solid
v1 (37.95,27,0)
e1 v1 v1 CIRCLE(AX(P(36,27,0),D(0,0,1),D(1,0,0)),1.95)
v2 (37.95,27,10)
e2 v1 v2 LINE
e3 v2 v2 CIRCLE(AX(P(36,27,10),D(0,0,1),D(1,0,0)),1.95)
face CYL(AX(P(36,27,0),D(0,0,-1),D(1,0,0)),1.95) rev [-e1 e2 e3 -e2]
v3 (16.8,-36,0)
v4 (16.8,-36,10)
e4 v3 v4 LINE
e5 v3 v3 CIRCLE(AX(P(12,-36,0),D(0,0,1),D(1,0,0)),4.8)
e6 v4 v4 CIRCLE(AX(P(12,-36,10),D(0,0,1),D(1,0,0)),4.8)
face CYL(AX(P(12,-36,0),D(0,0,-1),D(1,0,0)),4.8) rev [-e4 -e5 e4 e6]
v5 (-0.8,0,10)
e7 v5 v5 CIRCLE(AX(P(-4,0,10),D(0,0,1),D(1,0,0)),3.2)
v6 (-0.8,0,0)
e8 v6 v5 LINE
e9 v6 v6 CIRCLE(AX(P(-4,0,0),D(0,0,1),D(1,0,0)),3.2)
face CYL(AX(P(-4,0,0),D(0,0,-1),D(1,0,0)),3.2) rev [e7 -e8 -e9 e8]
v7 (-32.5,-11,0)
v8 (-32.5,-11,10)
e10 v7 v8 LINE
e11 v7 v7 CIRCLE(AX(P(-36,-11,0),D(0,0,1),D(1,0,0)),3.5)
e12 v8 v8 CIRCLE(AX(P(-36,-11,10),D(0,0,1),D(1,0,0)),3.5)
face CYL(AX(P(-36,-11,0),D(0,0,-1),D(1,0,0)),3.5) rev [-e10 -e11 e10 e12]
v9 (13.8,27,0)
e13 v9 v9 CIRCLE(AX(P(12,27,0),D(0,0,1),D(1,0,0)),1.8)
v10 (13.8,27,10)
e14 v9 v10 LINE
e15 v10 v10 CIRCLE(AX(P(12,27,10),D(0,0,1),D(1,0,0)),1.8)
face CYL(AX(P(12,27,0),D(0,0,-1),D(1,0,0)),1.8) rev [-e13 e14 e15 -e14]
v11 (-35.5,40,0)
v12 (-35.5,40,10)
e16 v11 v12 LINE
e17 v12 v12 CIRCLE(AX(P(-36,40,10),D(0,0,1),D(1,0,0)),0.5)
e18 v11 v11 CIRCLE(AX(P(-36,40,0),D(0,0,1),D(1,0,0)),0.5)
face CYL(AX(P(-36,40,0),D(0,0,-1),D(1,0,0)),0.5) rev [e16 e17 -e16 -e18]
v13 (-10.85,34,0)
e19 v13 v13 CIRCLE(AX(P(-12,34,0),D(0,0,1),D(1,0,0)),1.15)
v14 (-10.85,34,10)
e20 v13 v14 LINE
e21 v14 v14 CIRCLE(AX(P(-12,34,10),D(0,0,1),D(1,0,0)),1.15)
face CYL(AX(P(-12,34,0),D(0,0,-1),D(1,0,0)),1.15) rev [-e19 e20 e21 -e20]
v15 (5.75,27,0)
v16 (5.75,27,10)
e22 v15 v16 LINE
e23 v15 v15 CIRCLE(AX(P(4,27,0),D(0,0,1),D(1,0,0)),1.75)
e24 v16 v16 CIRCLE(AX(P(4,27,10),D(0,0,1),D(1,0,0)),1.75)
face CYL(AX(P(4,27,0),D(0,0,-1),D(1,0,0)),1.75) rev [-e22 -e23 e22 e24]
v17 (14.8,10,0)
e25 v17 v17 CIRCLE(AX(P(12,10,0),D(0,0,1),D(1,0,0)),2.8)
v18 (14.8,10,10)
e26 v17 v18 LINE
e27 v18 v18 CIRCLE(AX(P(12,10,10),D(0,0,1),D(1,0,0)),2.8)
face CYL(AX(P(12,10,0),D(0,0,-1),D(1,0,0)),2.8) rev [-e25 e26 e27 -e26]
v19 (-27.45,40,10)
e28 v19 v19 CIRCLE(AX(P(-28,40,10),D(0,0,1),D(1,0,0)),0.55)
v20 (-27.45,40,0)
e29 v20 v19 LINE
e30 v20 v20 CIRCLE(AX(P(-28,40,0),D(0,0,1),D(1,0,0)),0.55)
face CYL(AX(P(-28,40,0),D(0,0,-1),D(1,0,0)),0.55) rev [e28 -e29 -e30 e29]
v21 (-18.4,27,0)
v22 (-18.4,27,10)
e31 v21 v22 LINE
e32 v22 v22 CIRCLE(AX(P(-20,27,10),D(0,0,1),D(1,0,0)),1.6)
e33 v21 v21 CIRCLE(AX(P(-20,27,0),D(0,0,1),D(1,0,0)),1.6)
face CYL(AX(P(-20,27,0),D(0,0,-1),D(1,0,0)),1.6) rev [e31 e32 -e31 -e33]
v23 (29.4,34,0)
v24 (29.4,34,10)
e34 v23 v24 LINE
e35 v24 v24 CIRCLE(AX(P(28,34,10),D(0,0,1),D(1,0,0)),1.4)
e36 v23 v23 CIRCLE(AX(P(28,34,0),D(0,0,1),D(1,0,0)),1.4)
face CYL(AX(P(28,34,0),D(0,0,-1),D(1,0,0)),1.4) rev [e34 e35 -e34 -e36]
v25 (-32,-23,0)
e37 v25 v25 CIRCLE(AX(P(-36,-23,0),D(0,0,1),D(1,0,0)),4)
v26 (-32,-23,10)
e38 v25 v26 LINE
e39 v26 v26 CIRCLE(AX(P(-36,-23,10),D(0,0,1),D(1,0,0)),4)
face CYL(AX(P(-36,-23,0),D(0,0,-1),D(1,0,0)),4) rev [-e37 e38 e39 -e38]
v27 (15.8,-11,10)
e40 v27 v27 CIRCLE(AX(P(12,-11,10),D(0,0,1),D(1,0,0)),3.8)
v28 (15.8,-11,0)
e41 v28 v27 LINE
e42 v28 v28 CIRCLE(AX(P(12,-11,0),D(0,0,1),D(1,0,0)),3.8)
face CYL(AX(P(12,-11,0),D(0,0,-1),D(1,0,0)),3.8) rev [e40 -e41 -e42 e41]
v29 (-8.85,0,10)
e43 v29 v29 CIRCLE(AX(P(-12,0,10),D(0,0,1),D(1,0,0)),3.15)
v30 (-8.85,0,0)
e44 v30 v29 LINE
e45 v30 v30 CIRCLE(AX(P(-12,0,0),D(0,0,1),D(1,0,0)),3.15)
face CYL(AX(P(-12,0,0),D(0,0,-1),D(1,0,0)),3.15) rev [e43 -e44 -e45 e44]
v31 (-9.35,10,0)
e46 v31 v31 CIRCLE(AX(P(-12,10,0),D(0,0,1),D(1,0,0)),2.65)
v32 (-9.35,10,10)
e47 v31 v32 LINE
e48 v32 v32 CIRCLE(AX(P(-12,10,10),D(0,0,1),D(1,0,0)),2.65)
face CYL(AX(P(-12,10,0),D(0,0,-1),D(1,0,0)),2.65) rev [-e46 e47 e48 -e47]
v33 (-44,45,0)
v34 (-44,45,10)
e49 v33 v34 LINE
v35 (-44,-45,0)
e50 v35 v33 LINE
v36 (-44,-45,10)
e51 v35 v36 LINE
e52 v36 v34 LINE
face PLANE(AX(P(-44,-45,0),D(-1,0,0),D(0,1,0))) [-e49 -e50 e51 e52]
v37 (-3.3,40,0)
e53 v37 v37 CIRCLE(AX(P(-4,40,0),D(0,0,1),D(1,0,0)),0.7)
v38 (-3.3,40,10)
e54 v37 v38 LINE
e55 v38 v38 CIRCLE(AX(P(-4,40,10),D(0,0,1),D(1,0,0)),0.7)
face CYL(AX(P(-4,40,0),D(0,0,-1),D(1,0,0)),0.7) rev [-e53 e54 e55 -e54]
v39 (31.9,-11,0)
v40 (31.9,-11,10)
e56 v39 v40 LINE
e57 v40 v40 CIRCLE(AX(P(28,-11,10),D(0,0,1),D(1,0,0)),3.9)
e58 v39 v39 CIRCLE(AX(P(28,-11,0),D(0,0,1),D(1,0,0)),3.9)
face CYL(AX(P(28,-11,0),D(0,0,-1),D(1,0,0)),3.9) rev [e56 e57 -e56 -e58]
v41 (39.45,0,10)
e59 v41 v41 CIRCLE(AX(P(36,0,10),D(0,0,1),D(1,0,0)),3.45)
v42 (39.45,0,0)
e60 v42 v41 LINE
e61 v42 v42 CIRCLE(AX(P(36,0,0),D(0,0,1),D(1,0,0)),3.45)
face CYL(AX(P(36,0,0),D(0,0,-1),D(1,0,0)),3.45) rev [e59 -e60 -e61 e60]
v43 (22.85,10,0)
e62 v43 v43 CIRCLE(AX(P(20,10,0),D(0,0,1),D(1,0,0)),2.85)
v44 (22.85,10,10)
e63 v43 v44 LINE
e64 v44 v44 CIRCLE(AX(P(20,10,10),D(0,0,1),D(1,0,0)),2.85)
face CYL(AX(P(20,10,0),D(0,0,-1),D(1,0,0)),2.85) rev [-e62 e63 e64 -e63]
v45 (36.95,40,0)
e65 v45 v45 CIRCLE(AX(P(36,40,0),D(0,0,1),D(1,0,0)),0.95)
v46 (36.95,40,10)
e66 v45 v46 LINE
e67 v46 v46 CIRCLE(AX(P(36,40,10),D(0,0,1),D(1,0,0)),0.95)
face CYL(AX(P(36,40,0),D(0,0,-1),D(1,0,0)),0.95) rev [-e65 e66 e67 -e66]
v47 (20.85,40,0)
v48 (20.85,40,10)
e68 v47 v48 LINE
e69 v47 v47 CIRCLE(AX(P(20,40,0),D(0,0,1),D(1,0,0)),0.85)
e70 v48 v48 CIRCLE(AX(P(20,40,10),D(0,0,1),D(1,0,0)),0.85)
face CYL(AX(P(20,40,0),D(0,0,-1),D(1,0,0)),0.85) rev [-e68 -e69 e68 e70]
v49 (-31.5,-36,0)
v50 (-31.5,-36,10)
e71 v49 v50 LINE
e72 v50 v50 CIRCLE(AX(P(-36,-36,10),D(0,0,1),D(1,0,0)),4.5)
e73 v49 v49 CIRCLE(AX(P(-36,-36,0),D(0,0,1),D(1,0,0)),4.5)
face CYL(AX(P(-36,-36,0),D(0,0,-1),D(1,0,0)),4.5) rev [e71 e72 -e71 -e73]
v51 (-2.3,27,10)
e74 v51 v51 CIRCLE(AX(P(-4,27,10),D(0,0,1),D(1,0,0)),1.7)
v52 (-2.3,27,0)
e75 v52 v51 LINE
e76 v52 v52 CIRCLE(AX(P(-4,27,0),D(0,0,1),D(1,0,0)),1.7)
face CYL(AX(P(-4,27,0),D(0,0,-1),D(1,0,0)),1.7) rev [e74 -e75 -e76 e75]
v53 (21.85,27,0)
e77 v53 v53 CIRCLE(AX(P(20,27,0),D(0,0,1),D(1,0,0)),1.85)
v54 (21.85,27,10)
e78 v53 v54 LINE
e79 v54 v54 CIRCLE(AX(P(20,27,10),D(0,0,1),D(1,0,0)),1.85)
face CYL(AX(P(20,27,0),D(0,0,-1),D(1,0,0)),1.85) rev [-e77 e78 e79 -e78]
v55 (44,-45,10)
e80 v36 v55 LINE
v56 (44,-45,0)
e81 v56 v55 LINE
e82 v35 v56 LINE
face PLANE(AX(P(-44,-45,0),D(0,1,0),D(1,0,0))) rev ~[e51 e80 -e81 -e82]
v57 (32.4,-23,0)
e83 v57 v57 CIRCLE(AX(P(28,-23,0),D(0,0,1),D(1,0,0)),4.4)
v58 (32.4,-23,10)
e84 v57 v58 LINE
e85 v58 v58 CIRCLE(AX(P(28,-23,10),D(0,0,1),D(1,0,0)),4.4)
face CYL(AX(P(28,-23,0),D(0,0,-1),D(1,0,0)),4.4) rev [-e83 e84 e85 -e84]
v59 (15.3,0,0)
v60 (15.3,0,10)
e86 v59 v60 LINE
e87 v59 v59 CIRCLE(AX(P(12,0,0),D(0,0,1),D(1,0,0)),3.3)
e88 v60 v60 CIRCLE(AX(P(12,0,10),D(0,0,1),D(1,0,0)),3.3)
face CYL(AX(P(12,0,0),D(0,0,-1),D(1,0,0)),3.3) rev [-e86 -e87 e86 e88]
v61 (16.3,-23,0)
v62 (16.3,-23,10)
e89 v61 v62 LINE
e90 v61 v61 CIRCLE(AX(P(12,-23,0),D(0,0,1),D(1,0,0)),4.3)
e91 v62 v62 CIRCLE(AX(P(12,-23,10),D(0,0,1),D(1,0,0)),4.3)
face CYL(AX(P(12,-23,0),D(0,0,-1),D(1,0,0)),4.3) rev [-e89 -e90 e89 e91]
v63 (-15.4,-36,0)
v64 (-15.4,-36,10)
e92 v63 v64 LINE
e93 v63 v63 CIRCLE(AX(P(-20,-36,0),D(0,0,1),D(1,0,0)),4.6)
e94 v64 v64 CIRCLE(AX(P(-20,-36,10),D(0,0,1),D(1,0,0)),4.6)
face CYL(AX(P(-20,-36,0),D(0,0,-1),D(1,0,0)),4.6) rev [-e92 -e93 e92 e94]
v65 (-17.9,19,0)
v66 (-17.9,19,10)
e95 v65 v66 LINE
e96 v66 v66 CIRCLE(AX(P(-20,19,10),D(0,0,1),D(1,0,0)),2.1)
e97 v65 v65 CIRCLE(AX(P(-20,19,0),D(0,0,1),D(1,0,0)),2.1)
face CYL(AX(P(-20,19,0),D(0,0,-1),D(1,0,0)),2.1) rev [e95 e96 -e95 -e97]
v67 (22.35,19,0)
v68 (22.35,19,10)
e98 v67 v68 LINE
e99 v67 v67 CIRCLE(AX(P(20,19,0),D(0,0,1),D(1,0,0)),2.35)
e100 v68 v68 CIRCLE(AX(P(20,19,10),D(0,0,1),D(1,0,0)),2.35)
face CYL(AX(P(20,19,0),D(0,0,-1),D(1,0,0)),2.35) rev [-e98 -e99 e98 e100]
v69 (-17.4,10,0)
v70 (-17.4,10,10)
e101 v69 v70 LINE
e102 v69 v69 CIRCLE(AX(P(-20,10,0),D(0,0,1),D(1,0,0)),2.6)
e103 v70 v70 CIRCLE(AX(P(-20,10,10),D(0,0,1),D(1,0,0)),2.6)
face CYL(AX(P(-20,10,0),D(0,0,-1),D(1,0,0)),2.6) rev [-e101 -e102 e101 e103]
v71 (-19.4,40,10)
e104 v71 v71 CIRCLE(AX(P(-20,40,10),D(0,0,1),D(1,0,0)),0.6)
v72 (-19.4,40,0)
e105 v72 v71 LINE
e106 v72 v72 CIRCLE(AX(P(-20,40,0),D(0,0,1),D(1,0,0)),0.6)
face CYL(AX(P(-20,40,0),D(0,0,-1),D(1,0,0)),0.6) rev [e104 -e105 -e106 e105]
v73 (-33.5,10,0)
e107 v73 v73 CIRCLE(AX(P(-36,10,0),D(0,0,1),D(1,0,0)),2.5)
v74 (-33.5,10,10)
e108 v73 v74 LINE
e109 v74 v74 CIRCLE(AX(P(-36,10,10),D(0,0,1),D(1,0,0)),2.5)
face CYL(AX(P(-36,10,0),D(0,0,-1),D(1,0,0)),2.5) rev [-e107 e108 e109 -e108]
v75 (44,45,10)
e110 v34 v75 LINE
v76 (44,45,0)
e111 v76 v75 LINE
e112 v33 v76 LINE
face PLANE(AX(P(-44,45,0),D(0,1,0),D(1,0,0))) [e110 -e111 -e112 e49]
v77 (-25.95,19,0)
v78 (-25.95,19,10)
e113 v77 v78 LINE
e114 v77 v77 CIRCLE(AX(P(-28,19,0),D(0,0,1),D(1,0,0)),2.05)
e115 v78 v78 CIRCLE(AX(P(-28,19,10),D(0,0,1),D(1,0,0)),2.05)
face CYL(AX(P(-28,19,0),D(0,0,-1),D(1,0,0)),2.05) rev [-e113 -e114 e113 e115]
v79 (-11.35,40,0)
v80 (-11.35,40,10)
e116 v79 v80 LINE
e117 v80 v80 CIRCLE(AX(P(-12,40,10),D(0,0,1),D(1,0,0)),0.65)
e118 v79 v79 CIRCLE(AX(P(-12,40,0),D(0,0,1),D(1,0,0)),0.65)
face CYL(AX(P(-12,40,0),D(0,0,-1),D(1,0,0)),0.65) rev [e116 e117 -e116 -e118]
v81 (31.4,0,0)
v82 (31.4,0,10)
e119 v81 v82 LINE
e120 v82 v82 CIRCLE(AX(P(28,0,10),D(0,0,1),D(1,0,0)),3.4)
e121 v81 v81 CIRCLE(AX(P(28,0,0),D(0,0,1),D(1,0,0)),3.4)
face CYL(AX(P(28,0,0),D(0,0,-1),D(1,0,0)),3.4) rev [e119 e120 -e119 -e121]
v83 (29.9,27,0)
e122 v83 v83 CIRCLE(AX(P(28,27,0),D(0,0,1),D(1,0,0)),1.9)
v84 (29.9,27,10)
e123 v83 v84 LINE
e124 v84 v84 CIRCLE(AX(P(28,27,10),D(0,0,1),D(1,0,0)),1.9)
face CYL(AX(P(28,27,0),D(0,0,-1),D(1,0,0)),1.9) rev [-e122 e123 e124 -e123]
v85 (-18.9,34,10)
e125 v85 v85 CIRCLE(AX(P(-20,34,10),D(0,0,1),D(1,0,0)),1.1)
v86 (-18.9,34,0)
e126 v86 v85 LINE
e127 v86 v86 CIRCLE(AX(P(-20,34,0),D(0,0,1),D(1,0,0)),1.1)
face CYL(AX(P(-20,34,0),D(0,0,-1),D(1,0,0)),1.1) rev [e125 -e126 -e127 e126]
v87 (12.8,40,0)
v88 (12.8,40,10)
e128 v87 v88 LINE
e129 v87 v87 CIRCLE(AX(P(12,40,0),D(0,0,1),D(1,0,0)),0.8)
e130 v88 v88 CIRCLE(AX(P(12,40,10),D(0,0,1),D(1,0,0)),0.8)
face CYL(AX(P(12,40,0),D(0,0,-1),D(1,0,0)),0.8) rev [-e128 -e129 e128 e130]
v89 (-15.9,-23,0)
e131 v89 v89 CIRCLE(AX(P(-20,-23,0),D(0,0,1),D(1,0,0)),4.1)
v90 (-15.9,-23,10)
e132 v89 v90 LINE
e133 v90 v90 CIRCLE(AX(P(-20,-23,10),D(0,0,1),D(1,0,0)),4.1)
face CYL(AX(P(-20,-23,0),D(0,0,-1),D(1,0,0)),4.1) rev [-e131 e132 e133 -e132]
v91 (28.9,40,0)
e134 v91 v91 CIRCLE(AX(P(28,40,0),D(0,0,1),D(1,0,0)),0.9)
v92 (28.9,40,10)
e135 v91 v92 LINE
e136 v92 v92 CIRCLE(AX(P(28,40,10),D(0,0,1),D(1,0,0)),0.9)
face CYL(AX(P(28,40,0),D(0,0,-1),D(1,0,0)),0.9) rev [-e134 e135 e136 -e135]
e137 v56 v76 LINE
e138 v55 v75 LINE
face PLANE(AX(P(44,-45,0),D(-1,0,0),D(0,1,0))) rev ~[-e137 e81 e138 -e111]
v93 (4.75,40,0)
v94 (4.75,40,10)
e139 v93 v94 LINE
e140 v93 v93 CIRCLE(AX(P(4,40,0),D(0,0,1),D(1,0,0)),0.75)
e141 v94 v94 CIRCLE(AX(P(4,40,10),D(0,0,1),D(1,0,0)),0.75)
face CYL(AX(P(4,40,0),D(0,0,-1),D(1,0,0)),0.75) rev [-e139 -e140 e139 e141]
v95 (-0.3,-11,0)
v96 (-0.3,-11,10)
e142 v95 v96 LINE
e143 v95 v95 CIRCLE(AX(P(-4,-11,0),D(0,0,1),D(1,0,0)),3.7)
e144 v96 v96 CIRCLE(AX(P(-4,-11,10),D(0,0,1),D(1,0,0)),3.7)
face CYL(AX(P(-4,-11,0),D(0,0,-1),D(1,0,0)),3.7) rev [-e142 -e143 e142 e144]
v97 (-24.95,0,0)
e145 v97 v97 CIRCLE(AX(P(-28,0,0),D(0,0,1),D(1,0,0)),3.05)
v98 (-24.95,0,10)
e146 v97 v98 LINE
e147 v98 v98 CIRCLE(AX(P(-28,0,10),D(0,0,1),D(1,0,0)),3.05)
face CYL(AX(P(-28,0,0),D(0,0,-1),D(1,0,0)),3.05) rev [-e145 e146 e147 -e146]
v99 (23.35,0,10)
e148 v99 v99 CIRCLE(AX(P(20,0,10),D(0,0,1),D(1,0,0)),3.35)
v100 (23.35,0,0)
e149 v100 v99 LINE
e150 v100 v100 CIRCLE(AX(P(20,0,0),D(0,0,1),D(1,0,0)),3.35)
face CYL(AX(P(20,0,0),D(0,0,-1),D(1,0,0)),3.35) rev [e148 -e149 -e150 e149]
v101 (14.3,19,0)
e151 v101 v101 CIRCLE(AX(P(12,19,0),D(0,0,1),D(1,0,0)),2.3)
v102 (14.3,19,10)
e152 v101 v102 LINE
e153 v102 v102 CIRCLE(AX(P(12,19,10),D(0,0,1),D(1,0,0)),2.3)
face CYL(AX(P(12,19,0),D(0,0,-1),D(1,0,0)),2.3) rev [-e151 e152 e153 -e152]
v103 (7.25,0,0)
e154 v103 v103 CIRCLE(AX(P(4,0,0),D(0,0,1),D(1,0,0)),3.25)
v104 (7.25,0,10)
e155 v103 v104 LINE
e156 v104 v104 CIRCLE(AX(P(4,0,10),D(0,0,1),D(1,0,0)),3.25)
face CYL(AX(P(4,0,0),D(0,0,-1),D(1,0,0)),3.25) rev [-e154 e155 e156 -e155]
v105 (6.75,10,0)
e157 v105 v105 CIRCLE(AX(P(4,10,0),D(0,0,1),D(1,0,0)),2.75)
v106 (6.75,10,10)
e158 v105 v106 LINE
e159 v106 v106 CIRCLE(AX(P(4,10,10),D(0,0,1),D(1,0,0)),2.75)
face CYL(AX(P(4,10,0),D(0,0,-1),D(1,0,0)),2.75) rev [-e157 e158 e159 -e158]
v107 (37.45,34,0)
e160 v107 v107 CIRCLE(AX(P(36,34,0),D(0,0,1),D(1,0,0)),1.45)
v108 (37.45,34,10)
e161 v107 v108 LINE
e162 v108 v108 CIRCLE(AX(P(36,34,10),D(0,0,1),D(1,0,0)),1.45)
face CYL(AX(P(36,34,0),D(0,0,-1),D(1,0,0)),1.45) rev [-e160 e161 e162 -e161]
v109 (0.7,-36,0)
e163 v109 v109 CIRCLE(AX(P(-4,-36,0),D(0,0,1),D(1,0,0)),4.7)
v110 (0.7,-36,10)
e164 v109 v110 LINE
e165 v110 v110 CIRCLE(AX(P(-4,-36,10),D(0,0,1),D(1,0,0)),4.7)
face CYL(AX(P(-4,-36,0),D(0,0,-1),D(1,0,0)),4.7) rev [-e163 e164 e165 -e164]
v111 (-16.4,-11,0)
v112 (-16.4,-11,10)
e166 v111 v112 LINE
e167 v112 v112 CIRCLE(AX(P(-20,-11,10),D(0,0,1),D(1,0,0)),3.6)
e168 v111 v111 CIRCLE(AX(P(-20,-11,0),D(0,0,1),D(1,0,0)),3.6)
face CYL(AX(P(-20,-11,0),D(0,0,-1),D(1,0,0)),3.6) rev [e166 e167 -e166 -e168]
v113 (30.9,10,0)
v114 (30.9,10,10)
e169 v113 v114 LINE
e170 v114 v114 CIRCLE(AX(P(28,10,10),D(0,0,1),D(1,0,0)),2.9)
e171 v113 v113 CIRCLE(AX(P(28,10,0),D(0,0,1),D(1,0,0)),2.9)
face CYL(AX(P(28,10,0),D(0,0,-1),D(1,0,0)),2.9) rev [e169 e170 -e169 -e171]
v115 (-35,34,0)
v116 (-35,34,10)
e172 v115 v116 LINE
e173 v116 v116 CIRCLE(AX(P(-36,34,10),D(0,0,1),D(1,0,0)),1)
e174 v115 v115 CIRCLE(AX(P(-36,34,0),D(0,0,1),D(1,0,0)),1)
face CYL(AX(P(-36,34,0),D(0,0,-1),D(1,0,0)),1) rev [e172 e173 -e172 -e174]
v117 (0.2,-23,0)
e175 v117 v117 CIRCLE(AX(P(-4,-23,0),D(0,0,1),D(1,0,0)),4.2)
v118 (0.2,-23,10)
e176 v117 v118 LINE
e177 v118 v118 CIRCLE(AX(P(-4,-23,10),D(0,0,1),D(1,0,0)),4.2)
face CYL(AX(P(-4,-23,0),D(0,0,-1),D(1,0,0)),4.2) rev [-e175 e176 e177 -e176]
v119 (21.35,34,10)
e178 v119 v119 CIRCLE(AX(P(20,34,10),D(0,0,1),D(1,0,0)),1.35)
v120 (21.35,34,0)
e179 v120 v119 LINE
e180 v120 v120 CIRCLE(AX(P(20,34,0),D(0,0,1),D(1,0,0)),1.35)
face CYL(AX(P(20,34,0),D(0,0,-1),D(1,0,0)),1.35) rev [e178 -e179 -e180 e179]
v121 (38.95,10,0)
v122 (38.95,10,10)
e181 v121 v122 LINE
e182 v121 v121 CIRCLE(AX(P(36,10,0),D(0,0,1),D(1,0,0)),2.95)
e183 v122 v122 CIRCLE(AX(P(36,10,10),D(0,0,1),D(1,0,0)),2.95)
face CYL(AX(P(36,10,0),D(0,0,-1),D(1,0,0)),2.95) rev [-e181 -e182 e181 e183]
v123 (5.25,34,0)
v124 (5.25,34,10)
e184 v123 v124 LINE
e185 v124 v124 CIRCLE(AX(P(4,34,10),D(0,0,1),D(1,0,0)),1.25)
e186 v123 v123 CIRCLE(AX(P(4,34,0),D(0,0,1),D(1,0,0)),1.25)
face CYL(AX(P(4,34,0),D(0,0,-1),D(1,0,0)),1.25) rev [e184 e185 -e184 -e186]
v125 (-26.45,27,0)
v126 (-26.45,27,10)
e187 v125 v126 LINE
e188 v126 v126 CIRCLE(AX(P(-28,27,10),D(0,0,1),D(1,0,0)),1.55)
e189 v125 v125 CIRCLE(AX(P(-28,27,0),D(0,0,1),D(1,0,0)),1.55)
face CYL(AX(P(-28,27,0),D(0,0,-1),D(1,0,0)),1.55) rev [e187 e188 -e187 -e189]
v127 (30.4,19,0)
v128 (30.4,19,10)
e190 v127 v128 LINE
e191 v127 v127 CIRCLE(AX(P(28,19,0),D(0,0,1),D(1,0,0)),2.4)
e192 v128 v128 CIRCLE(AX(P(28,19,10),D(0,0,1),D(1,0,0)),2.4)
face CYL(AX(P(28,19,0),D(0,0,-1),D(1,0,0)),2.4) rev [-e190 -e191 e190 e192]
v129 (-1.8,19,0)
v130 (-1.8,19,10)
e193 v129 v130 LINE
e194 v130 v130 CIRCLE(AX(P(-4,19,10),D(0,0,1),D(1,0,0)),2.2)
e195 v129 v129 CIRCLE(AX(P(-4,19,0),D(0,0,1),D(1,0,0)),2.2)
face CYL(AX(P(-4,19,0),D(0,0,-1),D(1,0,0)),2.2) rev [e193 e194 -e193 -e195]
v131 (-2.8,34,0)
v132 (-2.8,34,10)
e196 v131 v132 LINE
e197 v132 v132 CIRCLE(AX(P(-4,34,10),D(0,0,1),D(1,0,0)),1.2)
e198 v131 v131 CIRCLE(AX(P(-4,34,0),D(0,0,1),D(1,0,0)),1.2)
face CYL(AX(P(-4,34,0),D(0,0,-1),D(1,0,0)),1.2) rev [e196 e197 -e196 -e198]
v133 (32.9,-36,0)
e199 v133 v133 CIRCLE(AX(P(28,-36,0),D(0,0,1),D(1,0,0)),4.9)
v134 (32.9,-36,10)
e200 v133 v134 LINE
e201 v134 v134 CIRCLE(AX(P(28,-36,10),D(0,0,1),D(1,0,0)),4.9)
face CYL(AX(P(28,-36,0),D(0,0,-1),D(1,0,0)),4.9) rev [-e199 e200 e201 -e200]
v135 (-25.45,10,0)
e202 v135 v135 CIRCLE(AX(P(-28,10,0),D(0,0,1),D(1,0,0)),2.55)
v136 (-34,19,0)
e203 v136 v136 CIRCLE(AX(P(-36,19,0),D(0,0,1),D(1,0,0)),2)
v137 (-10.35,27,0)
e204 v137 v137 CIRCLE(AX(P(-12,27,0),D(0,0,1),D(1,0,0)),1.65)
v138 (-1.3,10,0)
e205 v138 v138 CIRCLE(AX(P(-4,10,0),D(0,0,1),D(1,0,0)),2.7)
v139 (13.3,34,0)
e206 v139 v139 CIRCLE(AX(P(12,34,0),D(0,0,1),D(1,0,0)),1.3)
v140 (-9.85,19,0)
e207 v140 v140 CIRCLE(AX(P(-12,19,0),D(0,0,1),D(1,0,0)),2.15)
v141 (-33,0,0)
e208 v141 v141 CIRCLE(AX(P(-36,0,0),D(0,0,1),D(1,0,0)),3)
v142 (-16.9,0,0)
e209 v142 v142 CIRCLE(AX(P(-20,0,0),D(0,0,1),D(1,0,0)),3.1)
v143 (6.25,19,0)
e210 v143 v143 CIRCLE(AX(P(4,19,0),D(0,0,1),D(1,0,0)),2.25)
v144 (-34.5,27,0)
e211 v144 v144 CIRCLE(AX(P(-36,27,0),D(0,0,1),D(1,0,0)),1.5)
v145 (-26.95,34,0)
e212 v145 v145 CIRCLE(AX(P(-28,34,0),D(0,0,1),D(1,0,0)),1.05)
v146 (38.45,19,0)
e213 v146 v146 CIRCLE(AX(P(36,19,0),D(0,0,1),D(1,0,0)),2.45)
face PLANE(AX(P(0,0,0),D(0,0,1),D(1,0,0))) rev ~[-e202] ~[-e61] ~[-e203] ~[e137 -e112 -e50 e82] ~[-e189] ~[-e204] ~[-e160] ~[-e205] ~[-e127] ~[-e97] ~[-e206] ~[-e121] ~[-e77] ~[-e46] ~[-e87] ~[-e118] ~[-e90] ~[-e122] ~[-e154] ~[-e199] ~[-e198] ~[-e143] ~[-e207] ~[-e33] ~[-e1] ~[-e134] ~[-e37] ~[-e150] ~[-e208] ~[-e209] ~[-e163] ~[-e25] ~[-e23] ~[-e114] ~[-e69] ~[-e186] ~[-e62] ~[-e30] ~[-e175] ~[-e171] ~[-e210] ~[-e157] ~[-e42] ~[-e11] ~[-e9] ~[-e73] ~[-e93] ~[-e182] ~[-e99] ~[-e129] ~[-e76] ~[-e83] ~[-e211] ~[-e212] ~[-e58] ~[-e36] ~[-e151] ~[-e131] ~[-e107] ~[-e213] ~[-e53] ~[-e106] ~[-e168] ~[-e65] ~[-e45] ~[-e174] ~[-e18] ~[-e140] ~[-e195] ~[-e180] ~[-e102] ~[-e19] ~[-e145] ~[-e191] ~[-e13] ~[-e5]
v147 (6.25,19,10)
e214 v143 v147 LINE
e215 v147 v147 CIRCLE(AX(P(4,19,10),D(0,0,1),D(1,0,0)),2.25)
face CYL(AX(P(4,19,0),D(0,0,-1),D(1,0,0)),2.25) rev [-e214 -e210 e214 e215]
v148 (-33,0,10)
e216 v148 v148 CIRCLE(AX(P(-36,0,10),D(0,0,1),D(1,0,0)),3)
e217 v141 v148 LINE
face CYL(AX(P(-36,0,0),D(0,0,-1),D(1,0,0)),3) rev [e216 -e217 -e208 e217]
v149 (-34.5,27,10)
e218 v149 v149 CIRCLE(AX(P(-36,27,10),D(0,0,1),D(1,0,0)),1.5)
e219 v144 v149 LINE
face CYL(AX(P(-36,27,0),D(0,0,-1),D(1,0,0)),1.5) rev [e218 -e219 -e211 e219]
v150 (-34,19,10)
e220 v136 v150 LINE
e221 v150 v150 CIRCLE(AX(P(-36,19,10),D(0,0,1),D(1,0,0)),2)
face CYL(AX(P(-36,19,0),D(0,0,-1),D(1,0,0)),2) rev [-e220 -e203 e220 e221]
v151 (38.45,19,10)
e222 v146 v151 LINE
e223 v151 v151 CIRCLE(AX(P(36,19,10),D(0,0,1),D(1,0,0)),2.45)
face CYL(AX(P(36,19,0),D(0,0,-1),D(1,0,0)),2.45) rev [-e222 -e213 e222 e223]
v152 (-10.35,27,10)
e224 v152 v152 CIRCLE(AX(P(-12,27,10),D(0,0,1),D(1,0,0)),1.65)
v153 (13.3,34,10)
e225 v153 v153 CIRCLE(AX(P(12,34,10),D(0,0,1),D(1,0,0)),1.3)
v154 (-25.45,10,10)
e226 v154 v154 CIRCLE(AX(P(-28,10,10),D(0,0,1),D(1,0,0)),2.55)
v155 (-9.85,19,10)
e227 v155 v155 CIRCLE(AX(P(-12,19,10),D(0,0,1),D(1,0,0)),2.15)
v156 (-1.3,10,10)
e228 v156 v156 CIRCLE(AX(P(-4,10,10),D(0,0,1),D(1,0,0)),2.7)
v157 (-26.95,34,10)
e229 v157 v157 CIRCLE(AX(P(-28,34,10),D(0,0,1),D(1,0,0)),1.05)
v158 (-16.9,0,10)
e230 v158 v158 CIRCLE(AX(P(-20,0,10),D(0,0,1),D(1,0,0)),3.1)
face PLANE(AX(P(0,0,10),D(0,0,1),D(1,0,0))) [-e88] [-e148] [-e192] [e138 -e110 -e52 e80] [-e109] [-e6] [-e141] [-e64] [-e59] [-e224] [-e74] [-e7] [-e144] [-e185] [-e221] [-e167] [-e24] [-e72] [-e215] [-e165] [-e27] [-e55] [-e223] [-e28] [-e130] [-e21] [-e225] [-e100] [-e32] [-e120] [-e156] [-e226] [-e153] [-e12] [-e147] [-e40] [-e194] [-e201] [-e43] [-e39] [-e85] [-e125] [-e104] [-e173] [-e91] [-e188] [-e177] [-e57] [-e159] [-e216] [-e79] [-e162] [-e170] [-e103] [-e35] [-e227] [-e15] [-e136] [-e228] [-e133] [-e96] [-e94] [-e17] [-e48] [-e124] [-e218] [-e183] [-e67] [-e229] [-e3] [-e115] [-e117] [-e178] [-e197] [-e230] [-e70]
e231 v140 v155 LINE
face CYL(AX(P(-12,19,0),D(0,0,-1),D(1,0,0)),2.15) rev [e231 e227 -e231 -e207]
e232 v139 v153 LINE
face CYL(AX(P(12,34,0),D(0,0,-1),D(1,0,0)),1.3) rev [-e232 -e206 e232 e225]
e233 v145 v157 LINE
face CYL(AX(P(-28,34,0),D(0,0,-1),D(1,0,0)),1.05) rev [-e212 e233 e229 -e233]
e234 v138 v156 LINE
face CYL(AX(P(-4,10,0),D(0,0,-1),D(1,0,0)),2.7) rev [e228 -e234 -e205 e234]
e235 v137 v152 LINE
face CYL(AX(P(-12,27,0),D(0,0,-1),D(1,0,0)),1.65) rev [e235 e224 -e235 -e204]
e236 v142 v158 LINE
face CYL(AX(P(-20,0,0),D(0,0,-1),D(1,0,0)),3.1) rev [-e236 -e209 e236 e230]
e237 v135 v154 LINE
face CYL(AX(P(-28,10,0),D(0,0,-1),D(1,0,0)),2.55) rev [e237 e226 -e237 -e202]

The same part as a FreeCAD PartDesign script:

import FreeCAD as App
import Part
import Sketcher
from FreeCAD import Vector
Q = App.Units.Quantity


def add_polygon(sketch, points):
    """Adds a closed chain of lines whose ends are joined by coincident constraints."""
    first, n = sketch.GeometryCount, len(points)
    for a, b in zip(points, points[1:] + points[:1]):
        sketch.addGeometry(Part.LineSegment(App.Vector(*a, 0), App.Vector(*b, 0)), False)
    for i in range(n):
        sketch.addConstraint(Sketcher.Constraint("Coincident", first + i, 2, first + (i + 1) % n, 1))

doc = App.newDocument("Part")
body = doc.addObject("PartDesign::Body", "Body")

# Sketch on XY plane
sketch1 = body.newObject("Sketcher::SketchObject", "Sketch")
sketch1.AttachmentSupport = (doc.getObject("XY_Plane"), [""])
sketch1.MapMode = "FlatFace"
add_polygon(sketch1, [(-44, 45), (-44, -45), (44, -45), (44, 45)])  # lines 0-3
sketch1.addGeometry(Part.Circle(Vector(-36, -36, 0), Vector(0, 0, 1), 4.5), False)  # 4
sketch1.addGeometry(Part.Circle(Vector(-36, -23, 0), Vector(0, 0, 1), 4), False)  # 5
sketch1.addGeometry(Part.Circle(Vector(-20, -36, 0), Vector(0, 0, 1), 4.6), False)  # 6
sketch1.addGeometry(Part.Circle(Vector(-4, -36, 0), Vector(0, 0, 1), 4.7), False)  # 7
sketch1.addGeometry(Part.Circle(Vector(-20, -23, 0), Vector(0, 0, 1), 4.1), False)  # 8
sketch1.addGeometry(Part.Circle(Vector(-4, -23, 0), Vector(0, 0, 1), 4.2), False)  # 9
sketch1.addGeometry(Part.Circle(Vector(-36, -11, 0), Vector(0, 0, 1), 3.5), False)  # 10
sketch1.addGeometry(Part.Circle(Vector(-36, 0, 0), Vector(0, 0, 1), 3), False)  # 11
sketch1.addGeometry(Part.Circle(Vector(-28, 0, 0), Vector(0, 0, 1), 3.05), False)  # 12
sketch1.addGeometry(Part.Circle(Vector(-20, -11, 0), Vector(0, 0, 1), 3.6), False)  # 13
sketch1.addGeometry(Part.Circle(Vector(-4, -11, 0), Vector(0, 0, 1), 3.7), False)  # 14
sketch1.addGeometry(Part.Circle(Vector(-20, 0, 0), Vector(0, 0, 1), 3.1), False)  # 15
sketch1.addGeometry(Part.Circle(Vector(-12, 0, 0), Vector(0, 0, 1), 3.15), False)  # 16
sketch1.addGeometry(Part.Circle(Vector(-4, 0, 0), Vector(0, 0, 1), 3.2), False)  # 17
sketch1.addGeometry(Part.Circle(Vector(12, -36, 0), Vector(0, 0, 1), 4.8), False)  # 18
sketch1.addGeometry(Part.Circle(Vector(12, -23, 0), Vector(0, 0, 1), 4.3), False)  # 19
sketch1.addGeometry(Part.Circle(Vector(28, -36, 0), Vector(0, 0, 1), 4.9), False)  # 20
sketch1.addGeometry(Part.Circle(Vector(28, -23, 0), Vector(0, 0, 1), 4.4), False)  # 21
sketch1.addGeometry(Part.Circle(Vector(12, -11, 0), Vector(0, 0, 1), 3.8), False)  # 22
sketch1.addGeometry(Part.Circle(Vector(4, 0, 0), Vector(0, 0, 1), 3.25), False)  # 23
sketch1.addGeometry(Part.Circle(Vector(12, 0, 0), Vector(0, 0, 1), 3.3), False)  # 24
sketch1.addGeometry(Part.Circle(Vector(28, -11, 0), Vector(0, 0, 1), 3.9), False)  # 25
sketch1.addGeometry(Part.Circle(Vector(20, 0, 0), Vector(0, 0, 1), 3.35), False)  # 26
sketch1.addGeometry(Part.Circle(Vector(28, 0, 0), Vector(0, 0, 1), 3.4), False)  # 27
sketch1.addGeometry(Part.Circle(Vector(36, 0, 0), Vector(0, 0, 1), 3.45), False)  # 28
sketch1.addGeometry(Part.Circle(Vector(-36, 10, 0), Vector(0, 0, 1), 2.5), False)  # 29
sketch1.addGeometry(Part.Circle(Vector(-28, 10, 0), Vector(0, 0, 1), 2.55), False)  # 30
sketch1.addGeometry(Part.Circle(Vector(-36, 19, 0), Vector(0, 0, 1), 2), False)  # 31
sketch1.addGeometry(Part.Circle(Vector(-28, 19, 0), Vector(0, 0, 1), 2.05), False)  # 32
sketch1.addGeometry(Part.Circle(Vector(-20, 10, 0), Vector(0, 0, 1), 2.6), False)  # 33
sketch1.addGeometry(Part.Circle(Vector(-12, 10, 0), Vector(0, 0, 1), 2.65), False)  # 34
sketch1.addGeometry(Part.Circle(Vector(-4, 10, 0), Vector(0, 0, 1), 2.7), False)  # 35
sketch1.addGeometry(Part.Circle(Vector(-20, 19, 0), Vector(0, 0, 1), 2.1), False)  # 36
sketch1.addGeometry(Part.Circle(Vector(-12, 19, 0), Vector(0, 0, 1), 2.15), False)  # 37
sketch1.addGeometry(Part.Circle(Vector(-4, 19, 0), Vector(0, 0, 1), 2.2), False)  # 38
sketch1.addGeometry(Part.Circle(Vector(-36, 27, 0), Vector(0, 0, 1), 1.5), False)  # 39
sketch1.addGeometry(Part.Circle(Vector(-28, 27, 0), Vector(0, 0, 1), 1.55), False)  # 40
sketch1.addGeometry(Part.Circle(Vector(-36, 34, 0), Vector(0, 0, 1), 1), False)  # 41
sketch1.addGeometry(Part.Circle(Vector(-36, 40, 0), Vector(0, 0, 1), 0.5), False)  # 42
sketch1.addGeometry(Part.Circle(Vector(-28, 34, 0), Vector(0, 0, 1), 1.05), False)  # 43
sketch1.addGeometry(Part.Circle(Vector(-28, 40, 0), Vector(0, 0, 1), 0.55), False)  # 44
sketch1.addGeometry(Part.Circle(Vector(-20, 27, 0), Vector(0, 0, 1), 1.6), False)  # 45
sketch1.addGeometry(Part.Circle(Vector(-12, 27, 0), Vector(0, 0, 1), 1.65), False)  # 46
sketch1.addGeometry(Part.Circle(Vector(-4, 27, 0), Vector(0, 0, 1), 1.7), False)  # 47
sketch1.addGeometry(Part.Circle(Vector(-20, 34, 0), Vector(0, 0, 1), 1.1), False)  # 48
sketch1.addGeometry(Part.Circle(Vector(-12, 34, 0), Vector(0, 0, 1), 1.15), False)  # 49
sketch1.addGeometry(Part.Circle(Vector(-20, 40, 0), Vector(0, 0, 1), 0.6), False)  # 50
sketch1.addGeometry(Part.Circle(Vector(-12, 40, 0), Vector(0, 0, 1), 0.65), False)  # 51
sketch1.addGeometry(Part.Circle(Vector(-4, 34, 0), Vector(0, 0, 1), 1.2), False)  # 52
sketch1.addGeometry(Part.Circle(Vector(-4, 40, 0), Vector(0, 0, 1), 0.7), False)  # 53
sketch1.addGeometry(Part.Circle(Vector(4, 10, 0), Vector(0, 0, 1), 2.75), False)  # 54
sketch1.addGeometry(Part.Circle(Vector(12, 10, 0), Vector(0, 0, 1), 2.8), False)  # 55
sketch1.addGeometry(Part.Circle(Vector(4, 19, 0), Vector(0, 0, 1), 2.25), False)  # 56
sketch1.addGeometry(Part.Circle(Vector(12, 19, 0), Vector(0, 0, 1), 2.3), False)  # 57
sketch1.addGeometry(Part.Circle(Vector(20, 10, 0), Vector(0, 0, 1), 2.85), False)  # 58
sketch1.addGeometry(Part.Circle(Vector(28, 10, 0), Vector(0, 0, 1), 2.9), False)  # 59
sketch1.addGeometry(Part.Circle(Vector(36, 10, 0), Vector(0, 0, 1), 2.95), False)  # 60
sketch1.addGeometry(Part.Circle(Vector(20, 19, 0), Vector(0, 0, 1), 2.35), False)  # 61
sketch1.addGeometry(Part.Circle(Vector(28, 19, 0), Vector(0, 0, 1), 2.4), False)  # 62
sketch1.addGeometry(Part.Circle(Vector(36, 19, 0), Vector(0, 0, 1), 2.45), False)  # 63
sketch1.addGeometry(Part.Circle(Vector(4, 27, 0), Vector(0, 0, 1), 1.75), False)  # 64
sketch1.addGeometry(Part.Circle(Vector(12, 27, 0), Vector(0, 0, 1), 1.8), False)  # 65
sketch1.addGeometry(Part.Circle(Vector(4, 34, 0), Vector(0, 0, 1), 1.25), False)  # 66
sketch1.addGeometry(Part.Circle(Vector(4, 40, 0), Vector(0, 0, 1), 0.75), False)  # 67
sketch1.addGeometry(Part.Circle(Vector(12, 34, 0), Vector(0, 0, 1), 1.3), False)  # 68
sketch1.addGeometry(Part.Circle(Vector(12, 40, 0), Vector(0, 0, 1), 0.8), False)  # 69
sketch1.addGeometry(Part.Circle(Vector(20, 27, 0), Vector(0, 0, 1), 1.85), False)  # 70
sketch1.addGeometry(Part.Circle(Vector(28, 27, 0), Vector(0, 0, 1), 1.9), False)  # 71
sketch1.addGeometry(Part.Circle(Vector(36, 27, 0), Vector(0, 0, 1), 1.95), False)  # 72
sketch1.addGeometry(Part.Circle(Vector(20, 34, 0), Vector(0, 0, 1), 1.35), False)  # 73
sketch1.addGeometry(Part.Circle(Vector(28, 34, 0), Vector(0, 0, 1), 1.4), False)  # 74
sketch1.addGeometry(Part.Circle(Vector(20, 40, 0), Vector(0, 0, 1), 0.85), False)  # 75
sketch1.addGeometry(Part.Circle(Vector(28, 40, 0), Vector(0, 0, 1), 0.9), False)  # 76
sketch1.addGeometry(Part.Circle(Vector(36, 34, 0), Vector(0, 0, 1), 1.45), False)  # 77
sketch1.addGeometry(Part.Circle(Vector(36, 40, 0), Vector(0, 0, 1), 0.95), False)  # 78
sketch1.addConstraint([
    Sketcher.Constraint("Vertical", 0),
    Sketcher.Constraint("Horizontal", 1),
    Sketcher.Constraint("Vertical", 2),
    Sketcher.Constraint("Horizontal", 3),
    Sketcher.Constraint("Symmetric", 17, 3, 23, 3, -1, 1),
    Sketcher.Constraint("Symmetric", 16, 3, 24, 3, -1, 1),
    Sketcher.Constraint("Symmetric", 15, 3, 26, 3, -1, 1),
    Sketcher.Constraint("Symmetric", 12, 3, 27, 3, -1, 1),
    Sketcher.Constraint("Symmetric", 11, 3, 28, 3, -1, 1),
    Sketcher.Constraint("Symmetric", 0, 2, 2, 2, -1, 1),
    Sketcher.Constraint("Symmetric", 35, 3, 54, 3, -2),
    Sketcher.Constraint("Symmetric", 34, 3, 55, 3, -2),
    Sketcher.Constraint("Symmetric", 38, 3, 56, 3, -2),
    Sketcher.Constraint("Symmetric", 37, 3, 57, 3, -2),
    Sketcher.Constraint("Symmetric", 33, 3, 58, 3, -2),
    Sketcher.Constraint("Symmetric", 30, 3, 59, 3, -2),
    Sketcher.Constraint("Symmetric", 29, 3, 60, 3, -2),
    Sketcher.Constraint("Symmetric", 36, 3, 61, 3, -2),
    Sketcher.Constraint("Symmetric", 32, 3, 62, 3, -2),
    Sketcher.Constraint("Symmetric", 31, 3, 63, 3, -2),
    Sketcher.Constraint("Symmetric", 47, 3, 64, 3, -2),
    Sketcher.Constraint("Symmetric", 46, 3, 65, 3, -2),
    Sketcher.Constraint("Symmetric", 52, 3, 66, 3, -2),
    Sketcher.Constraint("Symmetric", 53, 3, 67, 3, -2),
    Sketcher.Constraint("Symmetric", 49, 3, 68, 3, -2),
    Sketcher.Constraint("Symmetric", 51, 3, 69, 3, -2),
    Sketcher.Constraint("Symmetric", 45, 3, 70, 3, -2),
    Sketcher.Constraint("Symmetric", 40, 3, 71, 3, -2),
    Sketcher.Constraint("Symmetric", 39, 3, 72, 3, -2),
    Sketcher.Constraint("Symmetric", 48, 3, 73, 3, -2),
    Sketcher.Constraint("Symmetric", 43, 3, 74, 3, -2),
    Sketcher.Constraint("Symmetric", 50, 3, 75, 3, -2),
    Sketcher.Constraint("Symmetric", 44, 3, 76, 3, -2),
    Sketcher.Constraint("Symmetric", 41, 3, 77, 3, -2),
    Sketcher.Constraint("Symmetric", 42, 3, 78, 3, -2),
    Sketcher.Constraint("PointOnObject", 11, 3, -1),
    Sketcher.Constraint("PointOnObject", 12, 3, -1),
    Sketcher.Constraint("PointOnObject", 15, 3, -1),
    Sketcher.Constraint("PointOnObject", 16, 3, -1),
    Sketcher.Constraint("PointOnObject", 17, 3, -1),
    Sketcher.Constraint("Horizontal", 4, 3, 6, 3),
    Sketcher.Constraint("Horizontal", 6, 3, 7, 3),
    Sketcher.Constraint("Horizontal", 5, 3, 8, 3),
    Sketcher.Constraint("Horizontal", 8, 3, 9, 3),
    Sketcher.Constraint("Horizontal", 10, 3, 13, 3),
    Sketcher.Constraint("Horizontal", 13, 3, 14, 3),
    Sketcher.Constraint("Horizontal", 7, 3, 18, 3),
    Sketcher.Constraint("Horizontal", 9, 3, 19, 3),
    Sketcher.Constraint("Horizontal", 18, 3, 20, 3),
    Sketcher.Constraint("Horizontal", 19, 3, 21, 3),
    Sketcher.Constraint("Horizontal", 14, 3, 22, 3),
    Sketcher.Constraint("Horizontal", 22, 3, 25, 3),
    Sketcher.Constraint("Horizontal", 29, 3, 30, 3),
    Sketcher.Constraint("Horizontal", 31, 3, 32, 3),
    Sketcher.Constraint("Horizontal", 30, 3, 33, 3),
    Sketcher.Constraint("Horizontal", 33, 3, 34, 3),
    Sketcher.Constraint("Horizontal", 34, 3, 35, 3),
    Sketcher.Constraint("Horizontal", 32, 3, 36, 3),
    Sketcher.Constraint("Horizontal", 36, 3, 37, 3),
    Sketcher.Constraint("Horizontal", 37, 3, 38, 3),
    Sketcher.Constraint("Horizontal", 39, 3, 40, 3),
    Sketcher.Constraint("Horizontal", 41, 3, 43, 3),
    Sketcher.Constraint("Horizontal", 42, 3, 44, 3),
    Sketcher.Constraint("Horizontal", 40, 3, 45, 3),
    Sketcher.Constraint("Horizontal", 45, 3, 46, 3),
    Sketcher.Constraint("Horizontal", 46, 3, 47, 3),
    Sketcher.Constraint("Horizontal", 43, 3, 48, 3),
    Sketcher.Constraint("Horizontal", 48, 3, 49, 3),
    Sketcher.Constraint("Horizontal", 44, 3, 50, 3),
    Sketcher.Constraint("Horizontal", 50, 3, 51, 3),
    Sketcher.Constraint("Horizontal", 49, 3, 52, 3),
    Sketcher.Constraint("Horizontal", 51, 3, 53, 3),
    Sketcher.Constraint("Vertical", 4, 3, 5, 3),
    Sketcher.Constraint("Vertical", 6, 3, 8, 3),
    Sketcher.Constraint("Vertical", 7, 3, 9, 3),
    Sketcher.Constraint("Vertical", 5, 3, 10, 3),
    Sketcher.Constraint("Vertical", 10, 3, 11, 3),
    Sketcher.Constraint("Vertical", 8, 3, 13, 3),
    Sketcher.Constraint("Vertical", 9, 3, 14, 3),
    Sketcher.Constraint("Vertical", 13, 3, 15, 3),
    Sketcher.Constraint("Vertical", 14, 3, 17, 3),
    Sketcher.Constraint("Vertical", 18, 3, 19, 3),
    Sketcher.Constraint("Vertical", 20, 3, 21, 3),
    Sketcher.Constraint("Vertical", 19, 3, 22, 3),
    Sketcher.Constraint("Vertical", 22, 3, 24, 3),
    Sketcher.Constraint("Vertical", 21, 3, 25, 3),
    Sketcher.Constraint("Vertical", 25, 3, 27, 3),
    Sketcher.Constraint("Vertical", 11, 3, 29, 3),
    Sketcher.Constraint("Vertical", 12, 3, 30, 3),
    Sketcher.Constraint("Vertical", 29, 3, 31, 3),
    Sketcher.Constraint("Vertical", 30, 3, 32, 3),
    Sketcher.Constraint("Vertical", 15, 3, 33, 3),
    Sketcher.Constraint("Vertical", 16, 3, 34, 3),
    Sketcher.Constraint("Vertical", 17, 3, 35, 3),
    Sketcher.Constraint("Vertical", 33, 3, 36, 3),
    Sketcher.Constraint("Vertical", 34, 3, 37, 3),
    Sketcher.Constraint("Vertical", 35, 3, 38, 3),
    Sketcher.Constraint("Vertical", 31, 3, 39, 3),
    Sketcher.Constraint("Vertical", 32, 3, 40, 3),
    Sketcher.Constraint("Vertical", 39, 3, 41, 3),
    Sketcher.Constraint("Vertical", 41, 3, 42, 3),
    Sketcher.Constraint("Vertical", 40, 3, 43, 3),
    Sketcher.Constraint("Vertical", 43, 3, 44, 3),
    Sketcher.Constraint("Vertical", 36, 3, 45, 3),
    Sketcher.Constraint("Vertical", 37, 3, 46, 3),
    Sketcher.Constraint("Vertical", 38, 3, 47, 3),
    Sketcher.Constraint("Vertical", 45, 3, 48, 3),
    Sketcher.Constraint("Vertical", 46, 3, 49, 3),
    Sketcher.Constraint("Vertical", 48, 3, 50, 3),
    Sketcher.Constraint("Vertical", 49, 3, 51, 3),
    Sketcher.Constraint("Vertical", 47, 3, 52, 3),
    Sketcher.Constraint("Vertical", 52, 3, 53, 3),
    Sketcher.Constraint("Diameter", 4, Q("9 mm")),
    Sketcher.Constraint("Diameter", 5, Q("8 mm")),
    Sketcher.Constraint("Diameter", 10, Q("7 mm")),
    Sketcher.Constraint("Diameter", 11, Q("6 mm")),
    Sketcher.Constraint("Diameter", 29, Q("5 mm")),
    Sketcher.Constraint("Diameter", 31, Q("4 mm")),
    Sketcher.Constraint("Diameter", 39, Q("3 mm")),
    Sketcher.Constraint("Diameter", 41, Q("2 mm")),
    Sketcher.Constraint("Diameter", 42, Q("1 mm")),
    Sketcher.Constraint("Diameter", 6, Q("9.2 mm")),
    Sketcher.Constraint("Diameter", 7, Q("9.4 mm")),
    Sketcher.Constraint("Diameter", 8, Q("8.2 mm")),
    Sketcher.Constraint("Diameter", 9, Q("8.4 mm")),
    Sketcher.Constraint("Diameter", 12, Q("6.1 mm")),
    Sketcher.Constraint("Diameter", 13, Q("7.2 mm")),
    Sketcher.Constraint("Diameter", 14, Q("7.4 mm")),
    Sketcher.Constraint("Diameter", 15, Q("6.2 mm")),
    Sketcher.Constraint("Diameter", 16, Q("6.3 mm")),
    Sketcher.Constraint("Diameter", 17, Q("6.4 mm")),
    Sketcher.Constraint("Diameter", 18, Q("9.6 mm")),
    Sketcher.Constraint("Diameter", 19, Q("8.6 mm")),
    Sketcher.Constraint("Diameter", 20, Q("9.8 mm")),
    Sketcher.Constraint("Diameter", 21, Q("8.8 mm")),
    Sketcher.Constraint("Diameter", 22, Q("7.6 mm")),
    Sketcher.Constraint("Diameter", 23, Q("6.5 mm")),
    Sketcher.Constraint("Diameter", 24, Q("6.6 mm")),
    Sketcher.Constraint("Diameter", 25, Q("7.8 mm")),
    Sketcher.Constraint("Diameter", 26, Q("6.7 mm")),
    Sketcher.Constraint("Diameter", 27, Q("6.8 mm")),
    Sketcher.Constraint("Diameter", 28, Q("6.9 mm")),
    Sketcher.Constraint("Diameter", 30, Q("5.1 mm")),
    Sketcher.Constraint("Diameter", 32, Q("4.1 mm")),
    Sketcher.Constraint("Diameter", 33, Q("5.2 mm")),
    Sketcher.Constraint("Diameter", 34, Q("5.3 mm")),
    Sketcher.Constraint("Diameter", 35, Q("5.4 mm")),
    Sketcher.Constraint("Diameter", 36, Q("4.2 mm")),
    Sketcher.Constraint("Diameter", 37, Q("4.3 mm")),
    Sketcher.Constraint("Diameter", 38, Q("4.4 mm")),
    Sketcher.Constraint("Diameter", 40, Q("3.1 mm")),
    Sketcher.Constraint("Diameter", 43, Q("2.1 mm")),
    Sketcher.Constraint("Diameter", 44, Q("1.1 mm")),
    Sketcher.Constraint("Diameter", 45, Q("3.2 mm")),
    Sketcher.Constraint("Diameter", 46, Q("3.3 mm")),
    Sketcher.Constraint("Diameter", 47, Q("3.4 mm")),
    Sketcher.Constraint("Diameter", 48, Q("2.2 mm")),
    Sketcher.Constraint("Diameter", 49, Q("2.3 mm")),
    Sketcher.Constraint("Diameter", 50, Q("1.2 mm")),
    Sketcher.Constraint("Diameter", 51, Q("1.3 mm")),
    Sketcher.Constraint("Diameter", 52, Q("2.4 mm")),
    Sketcher.Constraint("Diameter", 53, Q("1.4 mm")),
    Sketcher.Constraint("Diameter", 54, Q("5.5 mm")),
    Sketcher.Constraint("Diameter", 55, Q("5.6 mm")),
    Sketcher.Constraint("Diameter", 56, Q("4.5 mm")),
    Sketcher.Constraint("Diameter", 57, Q("4.6 mm")),
    Sketcher.Constraint("Diameter", 58, Q("5.7 mm")),
    Sketcher.Constraint("Diameter", 59, Q("5.8 mm")),
    Sketcher.Constraint("Diameter", 60, Q("5.9 mm")),
    Sketcher.Constraint("Diameter", 61, Q("4.7 mm")),
    Sketcher.Constraint("Diameter", 62, Q("4.8 mm")),
    Sketcher.Constraint("Diameter", 63, Q("4.9 mm")),
    Sketcher.Constraint("Diameter", 64, Q("3.5 mm")),
    Sketcher.Constraint("Diameter", 65, Q("3.6 mm")),
    Sketcher.Constraint("Diameter", 66, Q("2.5 mm")),
    Sketcher.Constraint("Diameter", 67, Q("1.5 mm")),
    Sketcher.Constraint("Diameter", 68, Q("2.6 mm")),
    Sketcher.Constraint("Diameter", 69, Q("1.6 mm")),
    Sketcher.Constraint("Diameter", 70, Q("3.7 mm")),
    Sketcher.Constraint("Diameter", 71, Q("3.8 mm")),
    Sketcher.Constraint("Diameter", 72, Q("3.9 mm")),
    Sketcher.Constraint("Diameter", 73, Q("2.7 mm")),
    Sketcher.Constraint("Diameter", 74, Q("2.8 mm")),
    Sketcher.Constraint("Diameter", 75, Q("1.7 mm")),
    Sketcher.Constraint("Diameter", 76, Q("1.8 mm")),
    Sketcher.Constraint("Diameter", 77, Q("2.9 mm")),
    Sketcher.Constraint("Diameter", 78, Q("1.9 mm")),
    Sketcher.Constraint("DistanceX", 1, 1, 1, 2, Q("88 mm")),
    Sketcher.Constraint("DistanceY", 0, 2, 0, 1, Q("90 mm")),
    Sketcher.Constraint("DistanceX", 4, 3, -1, 1, Q("36 mm")),
    Sketcher.Constraint("DistanceY", 4, 3, -1, 1, Q("36 mm")),
    Sketcher.Constraint("DistanceY", 5, 3, -1, 1, Q("23 mm")),
    Sketcher.Constraint("DistanceX", 6, 3, -1, 1, Q("20 mm")),
    Sketcher.Constraint("DistanceX", 7, 3, -1, 1, Q("4 mm")),
    Sketcher.Constraint("DistanceY", 10, 3, -1, 1, Q("11 mm")),
    Sketcher.Constraint("DistanceX", 12, 3, -1, 1, Q("28 mm")),
    Sketcher.Constraint("DistanceX", 16, 3, -1, 1, Q("12 mm")),
    Sketcher.Constraint("DistanceY", -1, 1, 29, 3, Q("10 mm")),
    Sketcher.Constraint("DistanceY", -1, 1, 31, 3, Q("19 mm")),
    Sketcher.Constraint("DistanceY", -1, 1, 39, 3, Q("27 mm")),
    Sketcher.Constraint("DistanceY", -1, 1, 41, 3, Q("34 mm")),
    Sketcher.Constraint("DistanceY", -1, 1, 42, 3, Q("40 mm")),
])
pad1 = body.newObject("PartDesign::Pad", "Pad")
pad1.Profile = sketch1
pad1.Length = 10

doc.recompute()
